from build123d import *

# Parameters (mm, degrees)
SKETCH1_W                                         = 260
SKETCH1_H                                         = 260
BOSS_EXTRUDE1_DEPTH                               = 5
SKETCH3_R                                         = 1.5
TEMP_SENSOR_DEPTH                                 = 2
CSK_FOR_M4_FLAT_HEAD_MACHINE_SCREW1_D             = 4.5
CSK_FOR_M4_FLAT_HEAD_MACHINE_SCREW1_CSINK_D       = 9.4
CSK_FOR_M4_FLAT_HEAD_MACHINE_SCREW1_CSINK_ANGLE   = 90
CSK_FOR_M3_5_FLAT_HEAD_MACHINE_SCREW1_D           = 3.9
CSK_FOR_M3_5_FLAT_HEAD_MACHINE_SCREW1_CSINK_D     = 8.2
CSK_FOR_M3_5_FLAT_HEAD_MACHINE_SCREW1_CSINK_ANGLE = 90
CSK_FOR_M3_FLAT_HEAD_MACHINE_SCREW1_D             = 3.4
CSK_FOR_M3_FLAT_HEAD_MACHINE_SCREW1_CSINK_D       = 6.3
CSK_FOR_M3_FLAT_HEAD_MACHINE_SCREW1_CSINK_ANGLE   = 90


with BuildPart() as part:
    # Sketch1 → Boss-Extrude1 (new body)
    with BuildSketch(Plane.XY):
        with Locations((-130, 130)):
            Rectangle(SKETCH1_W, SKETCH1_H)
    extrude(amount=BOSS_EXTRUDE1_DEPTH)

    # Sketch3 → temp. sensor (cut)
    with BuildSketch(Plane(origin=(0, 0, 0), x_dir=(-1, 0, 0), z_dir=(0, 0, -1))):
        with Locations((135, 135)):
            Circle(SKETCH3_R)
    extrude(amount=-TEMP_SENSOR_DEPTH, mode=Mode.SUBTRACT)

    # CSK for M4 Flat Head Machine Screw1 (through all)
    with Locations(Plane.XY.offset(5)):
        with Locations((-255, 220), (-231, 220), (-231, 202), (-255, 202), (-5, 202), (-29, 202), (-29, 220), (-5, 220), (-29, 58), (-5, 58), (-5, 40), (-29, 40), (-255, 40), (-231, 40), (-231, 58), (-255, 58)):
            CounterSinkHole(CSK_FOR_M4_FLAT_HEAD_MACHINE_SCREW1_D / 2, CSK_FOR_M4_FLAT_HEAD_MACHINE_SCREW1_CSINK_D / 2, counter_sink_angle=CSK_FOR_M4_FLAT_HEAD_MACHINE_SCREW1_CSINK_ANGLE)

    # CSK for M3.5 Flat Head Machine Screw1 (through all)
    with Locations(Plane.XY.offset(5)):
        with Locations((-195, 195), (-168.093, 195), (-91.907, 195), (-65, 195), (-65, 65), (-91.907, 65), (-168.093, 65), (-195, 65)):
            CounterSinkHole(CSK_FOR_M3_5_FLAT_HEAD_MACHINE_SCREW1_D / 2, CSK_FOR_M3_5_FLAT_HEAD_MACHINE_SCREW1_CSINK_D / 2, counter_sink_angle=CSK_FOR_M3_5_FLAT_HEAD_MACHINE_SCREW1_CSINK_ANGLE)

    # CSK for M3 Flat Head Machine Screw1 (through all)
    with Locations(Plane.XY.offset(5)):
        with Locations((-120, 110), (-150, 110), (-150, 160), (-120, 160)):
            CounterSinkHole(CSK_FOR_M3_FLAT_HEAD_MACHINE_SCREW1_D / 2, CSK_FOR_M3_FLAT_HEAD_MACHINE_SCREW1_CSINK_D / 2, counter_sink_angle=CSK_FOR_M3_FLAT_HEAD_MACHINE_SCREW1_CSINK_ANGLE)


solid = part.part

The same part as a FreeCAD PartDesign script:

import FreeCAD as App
import Part
import Sketcher

V = App.Vector


def add_polygon(sketch, points):
    """Adds a closed chain of lines whose ends are joined by coincident constraints."""
    first, n = sketch.GeometryCount, len(points)
    for a, b in zip(points, points[1:] + points[:1]):
        sketch.addGeometry(Part.LineSegment(App.Vector(*a, 0), App.Vector(*b, 0)), False)
    for i in range(n):
        sketch.addConstraint(Sketcher.Constraint("Coincident", first + i, 2, first + (i + 1) % n, 1))

doc = App.newDocument("Part")
body = doc.addObject("PartDesign::Body", "Body")

sketch1 = doc.addObject("Sketcher::SketchObject", "Sketch")
body.addObject(sketch1)
sketch1.AttachmentSupport = (doc.XY_Plane, [""])
sketch1.MapMode = "FlatFace"
add_polygon(sketch1, [(-260, 260), (-260, 0), (0, 0), (0, 260)])
sketch1.addConstraint([
    Sketcher.Constraint("Vertical", 0),
    Sketcher.Constraint("Horizontal", 1),
    Sketcher.Constraint("Vertical", 2),
    Sketcher.Constraint("Horizontal", 3),
    Sketcher.Constraint("Coincident", 1, 2, -1, 1),
    Sketcher.Constraint("Equal", 3, 0),
    Sketcher.Constraint("DistanceX", 1, 1, 1, 2, 260.0),
])
pad1 = doc.addObject("PartDesign::Pad", "Pad")
body.addObject(pad1)
pad1.Profile = sketch1
pad1.Length = 5

sketch2 = doc.addObject("Sketcher::SketchObject", "Sketch001")
body.addObject(sketch2)
sketch2.AttachmentSupport = (doc.XY_Plane, [""])
sketch2.MapMode = "FlatFace"
sketch2.addGeometry(Part.Circle(V(-135, 135, 0), V(0, 0, 1), 1.5), False)
sketch2.addConstraint([
    Sketcher.Constraint("Diameter", 0, 3.0),
    Sketcher.Constraint("DistanceX", 0, 3, -1, 1, 135.0),
    Sketcher.Constraint("DistanceY", -1, 1, 0, 3, 135.0),
])
pocket1 = doc.addObject("PartDesign::Pocket", "Pocket")
body.addObject(pocket1)
pocket1.Profile = sketch2
pocket1.Length = 2
pocket1.Reversed = True

sketch3 = doc.addObject("Sketcher::SketchObject", "Sketch002")
body.addObject(sketch3)
sketch3.AttachmentSupport = (doc.XY_Plane, [""])
sketch3.MapMode = "FlatFace"
sketch3.AttachmentOffset = App.Placement(V(0, 0, 5), App.Rotation())
sketch3.addGeometry([
    Part.Circle(V(-255, 220, 0), V(0, 0, 1), 2.25),
    Part.Circle(V(-231, 220, 0), V(0, 0, 1), 2.25),
    Part.Circle(V(-231, 202, 0), V(0, 0, 1), 2.25),
    Part.Circle(V(-255, 202, 0), V(0, 0, 1), 2.25),
    Part.Circle(V(-5, 202, 0), V(0, 0, 1), 2.25),
    Part.Circle(V(-29, 202, 0), V(0, 0, 1), 2.25),
    Part.Circle(V(-29, 220, 0), V(0, 0, 1), 2.25),
    Part.Circle(V(-5, 220, 0), V(0, 0, 1), 2.25),
    Part.Circle(V(-29, 58, 0), V(0, 0, 1), 2.25),
    Part.Circle(V(-5, 58, 0), V(0, 0, 1), 2.25),
    Part.Circle(V(-5, 40, 0), V(0, 0, 1), 2.25),
    Part.Circle(V(-29, 40, 0), V(0, 0, 1), 2.25),
    Part.Circle(V(-255, 40, 0), V(0, 0, 1), 2.25),
    Part.Circle(V(-231, 40, 0), V(0, 0, 1), 2.25),
    Part.Circle(V(-231, 58, 0), V(0, 0, 1), 2.25),
    Part.Circle(V(-255, 58, 0), V(0, 0, 1), 2.25),
], False)
sketch3.addConstraint([
    Sketcher.Constraint("Equal", 0, 1),
    Sketcher.Constraint("Equal", 1, 2),
    Sketcher.Constraint("Equal", 2, 3),
    Sketcher.Constraint("Equal", 3, 4),
    Sketcher.Constraint("Equal", 4, 5),
    Sketcher.Constraint("Equal", 5, 6),
    Sketcher.Constraint("Equal", 6, 7),
    Sketcher.Constraint("Equal", 7, 8),
    Sketcher.Constraint("Equal", 8, 9),
    Sketcher.Constraint("Equal", 9, 10),
    Sketcher.Constraint("Equal", 10, 11),
    Sketcher.Constraint("Equal", 11, 12),
    Sketcher.Constraint("Equal", 12, 13),
    Sketcher.Constraint("Equal", 13, 14),
    Sketcher.Constraint("Equal", 14, 15),
    Sketcher.Constraint("Horizontal", 0, 3, 1, 3),
    Sketcher.Constraint("Horizontal", 2, 3, 3, 3),
    Sketcher.Constraint("Horizontal", 3, 3, 4, 3),
    Sketcher.Constraint("Horizontal", 4, 3, 5, 3),
    Sketcher.Constraint("Horizontal", 1, 3, 6, 3),
    Sketcher.Constraint("Horizontal", 6, 3, 7, 3),
    Sketcher.Constraint("Horizontal", 8, 3, 9, 3),
    Sketcher.Constraint("Horizontal", 10, 3, 11, 3),
    Sketcher.Constraint("Horizontal", 11, 3, 12, 3),
    Sketcher.Constraint("Horizontal", 12, 3, 13, 3),
    Sketcher.Constraint("Horizontal", 9, 3, 14, 3),
    Sketcher.Constraint("Horizontal", 14, 3, 15, 3),
    Sketcher.Constraint("Vertical", 1, 3, 2, 3),
    Sketcher.Constraint("Vertical", 0, 3, 3, 3),
    Sketcher.Constraint("Vertical", 5, 3, 6, 3),
    Sketcher.Constraint("Vertical", 4, 3, 7, 3),
    Sketcher.Constraint("Vertical", 6, 3, 8, 3),
    Sketcher.Constraint("Vertical", 7, 3, 9, 3),
    Sketcher.Constraint("Vertical", 9, 3, 10, 3),
    Sketcher.Constraint("Vertical", 8, 3, 11, 3),
    Sketcher.Constraint("Vertical", 3, 3, 12, 3),
    Sketcher.Constraint("Vertical", 2, 3, 13, 3),
    Sketcher.Constraint("Vertical", 13, 3, 14, 3),
    Sketcher.Constraint("Vertical", 12, 3, 15, 3),
    Sketcher.Constraint("Diameter", 0, 4.5),
    Sketcher.Constraint("DistanceX", 0, 3, -1, 1, 255.0),
    Sketcher.Constraint("DistanceY", -1, 1, 0, 3, 220.0),
    Sketcher.Constraint("DistanceX", 1, 3, -1, 1, 231.0),
    Sketcher.Constraint("DistanceY", -1, 1, 2, 3, 202.0),
    Sketcher.Constraint("DistanceX", 4, 3, -1, 1, 5.0),
    Sketcher.Constraint("DistanceX", 5, 3, -1, 1, 29.0),
    Sketcher.Constraint("DistanceY", -1, 1, 8, 3, 58.0),
    Sketcher.Constraint("DistanceY", -1, 1, 10, 3, 40.0),
])
doc.recompute()
hole = doc.addObject("PartDesign::Hole", "Hole")
body.addObject(hole)
hole.Profile = sketch3
hole.ThreadType = "None"
hole.Diameter = 4.5
hole.DepthType = "ThroughAll"
hole.HoleCutType = "Countersink"
hole.HoleCutDiameter = 9.4
hole.HoleCutCountersinkAngle = 90

sketch4 = doc.addObject("Sketcher::SketchObject", "Sketch003")
body.addObject(sketch4)
sketch4.AttachmentSupport = (doc.XY_Plane, [""])
sketch4.MapMode = "FlatFace"
sketch4.AttachmentOffset = App.Placement(V(0, 0, 5), App.Rotation())
sketch4.addGeometry([
    Part.Circle(V(-195, 195, 0), V(0, 0, 1), 1.95),
    Part.Circle(V(-168.093, 195, 0), V(0, 0, 1), 1.95),
    Part.Circle(V(-91.907, 195, 0), V(0, 0, 1), 1.95),
    Part.Circle(V(-65, 195, 0), V(0, 0, 1), 1.95),
    Part.Circle(V(-65, 65, 0), V(0, 0, 1), 1.95),
    Part.Circle(V(-91.907, 65, 0), V(0, 0, 1), 1.95),
    Part.Circle(V(-168.093, 65, 0), V(0, 0, 1), 1.95),
    Part.Circle(V(-195, 65, 0), V(0, 0, 1), 1.95),
], False)
sketch4.addConstraint([
    Sketcher.Constraint("Equal", 0, 1),
    Sketcher.Constraint("Equal", 1, 2),
    Sketcher.Constraint("Equal", 2, 3),
    Sketcher.Constraint("Equal", 3, 4),
    Sketcher.Constraint("Equal", 4, 5),
    Sketcher.Constraint("Equal", 5, 6),
    Sketcher.Constraint("Equal", 6, 7),
    Sketcher.Constraint("Horizontal", 0, 3, 1, 3),
    Sketcher.Constraint("Horizontal", 1, 3, 2, 3),
    Sketcher.Constraint("Horizontal", 2, 3, 3, 3),
    Sketcher.Constraint("Horizontal", 4, 3, 5, 3),
    Sketcher.Constraint("Horizontal", 5, 3, 6, 3),
    Sketcher.Constraint("Horizontal", 6, 3, 7, 3),
    Sketcher.Constraint("Vertical", 3, 3, 4, 3),
    Sketcher.Constraint("Vertical", 2, 3, 5, 3),
    Sketcher.Constraint("Vertical", 1, 3, 6, 3),
    Sketcher.Constraint("Vertical", 0, 3, 7, 3),
    Sketcher.Constraint("Diameter", 0, 3.9),
    Sketcher.Constraint("DistanceX", 0, 3, -1, 1, 195.0),
    Sketcher.Constraint("DistanceY", -1, 1, 0, 3, 195.0),
    Sketcher.Constraint("DistanceX", 3, 3, -1, 1, 65.0),
    Sketcher.Constraint("DistanceY", -1, 1, 4, 3, 65.0),
    Sketcher.Constraint("DistanceX", 1, 3, -1, 1, 168.093),
    Sketcher.Constraint("DistanceX", 2, 3, -1, 1, 91.907),
])
doc.recompute()
hole2 = doc.addObject("PartDesign::Hole", "Hole001")
body.addObject(hole2)
hole2.Profile = sketch4
hole2.ThreadType = "None"
hole2.Diameter = 3.9
hole2.DepthType = "ThroughAll"
hole2.HoleCutType = "Countersink"
hole2.HoleCutDiameter = 8.2
hole2.HoleCutCountersinkAngle = 90

sketch5 = doc.addObject("Sketcher::SketchObject", "Sketch004")
body.addObject(sketch5)
sketch5.AttachmentSupport = (doc.XY_Plane, [""])
sketch5.MapMode = "FlatFace"
sketch5.AttachmentOffset = App.Placement(V(0, 0, 5), App.Rotation())
sketch5.addGeometry([
    Part.Circle(V(-120, 110, 0), V(0, 0, 1), 1.7),
    Part.Circle(V(-150, 110, 0), V(0, 0, 1), 1.7),
    Part.Circle(V(-150, 160, 0), V(0, 0, 1), 1.7),
    Part.Circle(V(-120, 160, 0), V(0, 0, 1), 1.7),
], False)
sketch5.addConstraint([
    Sketcher.Constraint("Equal", 0, 1),
    Sketcher.Constraint("Equal", 1, 2),
    Sketcher.Constraint("Equal", 2, 3),
    Sketcher.Constraint("Horizontal", 0, 3, 1, 3),
    Sketcher.Constraint("Horizontal", 2, 3, 3, 3),
    Sketcher.Constraint("Vertical", 1, 3, 2, 3),
    Sketcher.Constraint("Vertical", 0, 3, 3, 3),
    Sketcher.Constraint("Diameter", 0, 3.4),
    Sketcher.Constraint("DistanceX", 0, 3, -1, 1, 120.0),
    Sketcher.Constraint("DistanceY", -1, 1, 0, 3, 110.0),
    Sketcher.Constraint("DistanceX", 1, 3, -1, 1, 150.0),
    Sketcher.Constraint("DistanceY", -1, 1, 2, 3, 160.0),
])
doc.recompute()
hole3 = doc.addObject("PartDesign::Hole", "Hole002")
body.addObject(hole3)
hole3.Profile = sketch5
hole3.ThreadType = "None"
hole3.Diameter = 3.4
hole3.DepthType = "ThroughAll"
hole3.HoleCutType = "Countersink"
hole3.HoleCutDiameter = 6.3
hole3.HoleCutCountersinkAngle = 90

doc.recompute()
